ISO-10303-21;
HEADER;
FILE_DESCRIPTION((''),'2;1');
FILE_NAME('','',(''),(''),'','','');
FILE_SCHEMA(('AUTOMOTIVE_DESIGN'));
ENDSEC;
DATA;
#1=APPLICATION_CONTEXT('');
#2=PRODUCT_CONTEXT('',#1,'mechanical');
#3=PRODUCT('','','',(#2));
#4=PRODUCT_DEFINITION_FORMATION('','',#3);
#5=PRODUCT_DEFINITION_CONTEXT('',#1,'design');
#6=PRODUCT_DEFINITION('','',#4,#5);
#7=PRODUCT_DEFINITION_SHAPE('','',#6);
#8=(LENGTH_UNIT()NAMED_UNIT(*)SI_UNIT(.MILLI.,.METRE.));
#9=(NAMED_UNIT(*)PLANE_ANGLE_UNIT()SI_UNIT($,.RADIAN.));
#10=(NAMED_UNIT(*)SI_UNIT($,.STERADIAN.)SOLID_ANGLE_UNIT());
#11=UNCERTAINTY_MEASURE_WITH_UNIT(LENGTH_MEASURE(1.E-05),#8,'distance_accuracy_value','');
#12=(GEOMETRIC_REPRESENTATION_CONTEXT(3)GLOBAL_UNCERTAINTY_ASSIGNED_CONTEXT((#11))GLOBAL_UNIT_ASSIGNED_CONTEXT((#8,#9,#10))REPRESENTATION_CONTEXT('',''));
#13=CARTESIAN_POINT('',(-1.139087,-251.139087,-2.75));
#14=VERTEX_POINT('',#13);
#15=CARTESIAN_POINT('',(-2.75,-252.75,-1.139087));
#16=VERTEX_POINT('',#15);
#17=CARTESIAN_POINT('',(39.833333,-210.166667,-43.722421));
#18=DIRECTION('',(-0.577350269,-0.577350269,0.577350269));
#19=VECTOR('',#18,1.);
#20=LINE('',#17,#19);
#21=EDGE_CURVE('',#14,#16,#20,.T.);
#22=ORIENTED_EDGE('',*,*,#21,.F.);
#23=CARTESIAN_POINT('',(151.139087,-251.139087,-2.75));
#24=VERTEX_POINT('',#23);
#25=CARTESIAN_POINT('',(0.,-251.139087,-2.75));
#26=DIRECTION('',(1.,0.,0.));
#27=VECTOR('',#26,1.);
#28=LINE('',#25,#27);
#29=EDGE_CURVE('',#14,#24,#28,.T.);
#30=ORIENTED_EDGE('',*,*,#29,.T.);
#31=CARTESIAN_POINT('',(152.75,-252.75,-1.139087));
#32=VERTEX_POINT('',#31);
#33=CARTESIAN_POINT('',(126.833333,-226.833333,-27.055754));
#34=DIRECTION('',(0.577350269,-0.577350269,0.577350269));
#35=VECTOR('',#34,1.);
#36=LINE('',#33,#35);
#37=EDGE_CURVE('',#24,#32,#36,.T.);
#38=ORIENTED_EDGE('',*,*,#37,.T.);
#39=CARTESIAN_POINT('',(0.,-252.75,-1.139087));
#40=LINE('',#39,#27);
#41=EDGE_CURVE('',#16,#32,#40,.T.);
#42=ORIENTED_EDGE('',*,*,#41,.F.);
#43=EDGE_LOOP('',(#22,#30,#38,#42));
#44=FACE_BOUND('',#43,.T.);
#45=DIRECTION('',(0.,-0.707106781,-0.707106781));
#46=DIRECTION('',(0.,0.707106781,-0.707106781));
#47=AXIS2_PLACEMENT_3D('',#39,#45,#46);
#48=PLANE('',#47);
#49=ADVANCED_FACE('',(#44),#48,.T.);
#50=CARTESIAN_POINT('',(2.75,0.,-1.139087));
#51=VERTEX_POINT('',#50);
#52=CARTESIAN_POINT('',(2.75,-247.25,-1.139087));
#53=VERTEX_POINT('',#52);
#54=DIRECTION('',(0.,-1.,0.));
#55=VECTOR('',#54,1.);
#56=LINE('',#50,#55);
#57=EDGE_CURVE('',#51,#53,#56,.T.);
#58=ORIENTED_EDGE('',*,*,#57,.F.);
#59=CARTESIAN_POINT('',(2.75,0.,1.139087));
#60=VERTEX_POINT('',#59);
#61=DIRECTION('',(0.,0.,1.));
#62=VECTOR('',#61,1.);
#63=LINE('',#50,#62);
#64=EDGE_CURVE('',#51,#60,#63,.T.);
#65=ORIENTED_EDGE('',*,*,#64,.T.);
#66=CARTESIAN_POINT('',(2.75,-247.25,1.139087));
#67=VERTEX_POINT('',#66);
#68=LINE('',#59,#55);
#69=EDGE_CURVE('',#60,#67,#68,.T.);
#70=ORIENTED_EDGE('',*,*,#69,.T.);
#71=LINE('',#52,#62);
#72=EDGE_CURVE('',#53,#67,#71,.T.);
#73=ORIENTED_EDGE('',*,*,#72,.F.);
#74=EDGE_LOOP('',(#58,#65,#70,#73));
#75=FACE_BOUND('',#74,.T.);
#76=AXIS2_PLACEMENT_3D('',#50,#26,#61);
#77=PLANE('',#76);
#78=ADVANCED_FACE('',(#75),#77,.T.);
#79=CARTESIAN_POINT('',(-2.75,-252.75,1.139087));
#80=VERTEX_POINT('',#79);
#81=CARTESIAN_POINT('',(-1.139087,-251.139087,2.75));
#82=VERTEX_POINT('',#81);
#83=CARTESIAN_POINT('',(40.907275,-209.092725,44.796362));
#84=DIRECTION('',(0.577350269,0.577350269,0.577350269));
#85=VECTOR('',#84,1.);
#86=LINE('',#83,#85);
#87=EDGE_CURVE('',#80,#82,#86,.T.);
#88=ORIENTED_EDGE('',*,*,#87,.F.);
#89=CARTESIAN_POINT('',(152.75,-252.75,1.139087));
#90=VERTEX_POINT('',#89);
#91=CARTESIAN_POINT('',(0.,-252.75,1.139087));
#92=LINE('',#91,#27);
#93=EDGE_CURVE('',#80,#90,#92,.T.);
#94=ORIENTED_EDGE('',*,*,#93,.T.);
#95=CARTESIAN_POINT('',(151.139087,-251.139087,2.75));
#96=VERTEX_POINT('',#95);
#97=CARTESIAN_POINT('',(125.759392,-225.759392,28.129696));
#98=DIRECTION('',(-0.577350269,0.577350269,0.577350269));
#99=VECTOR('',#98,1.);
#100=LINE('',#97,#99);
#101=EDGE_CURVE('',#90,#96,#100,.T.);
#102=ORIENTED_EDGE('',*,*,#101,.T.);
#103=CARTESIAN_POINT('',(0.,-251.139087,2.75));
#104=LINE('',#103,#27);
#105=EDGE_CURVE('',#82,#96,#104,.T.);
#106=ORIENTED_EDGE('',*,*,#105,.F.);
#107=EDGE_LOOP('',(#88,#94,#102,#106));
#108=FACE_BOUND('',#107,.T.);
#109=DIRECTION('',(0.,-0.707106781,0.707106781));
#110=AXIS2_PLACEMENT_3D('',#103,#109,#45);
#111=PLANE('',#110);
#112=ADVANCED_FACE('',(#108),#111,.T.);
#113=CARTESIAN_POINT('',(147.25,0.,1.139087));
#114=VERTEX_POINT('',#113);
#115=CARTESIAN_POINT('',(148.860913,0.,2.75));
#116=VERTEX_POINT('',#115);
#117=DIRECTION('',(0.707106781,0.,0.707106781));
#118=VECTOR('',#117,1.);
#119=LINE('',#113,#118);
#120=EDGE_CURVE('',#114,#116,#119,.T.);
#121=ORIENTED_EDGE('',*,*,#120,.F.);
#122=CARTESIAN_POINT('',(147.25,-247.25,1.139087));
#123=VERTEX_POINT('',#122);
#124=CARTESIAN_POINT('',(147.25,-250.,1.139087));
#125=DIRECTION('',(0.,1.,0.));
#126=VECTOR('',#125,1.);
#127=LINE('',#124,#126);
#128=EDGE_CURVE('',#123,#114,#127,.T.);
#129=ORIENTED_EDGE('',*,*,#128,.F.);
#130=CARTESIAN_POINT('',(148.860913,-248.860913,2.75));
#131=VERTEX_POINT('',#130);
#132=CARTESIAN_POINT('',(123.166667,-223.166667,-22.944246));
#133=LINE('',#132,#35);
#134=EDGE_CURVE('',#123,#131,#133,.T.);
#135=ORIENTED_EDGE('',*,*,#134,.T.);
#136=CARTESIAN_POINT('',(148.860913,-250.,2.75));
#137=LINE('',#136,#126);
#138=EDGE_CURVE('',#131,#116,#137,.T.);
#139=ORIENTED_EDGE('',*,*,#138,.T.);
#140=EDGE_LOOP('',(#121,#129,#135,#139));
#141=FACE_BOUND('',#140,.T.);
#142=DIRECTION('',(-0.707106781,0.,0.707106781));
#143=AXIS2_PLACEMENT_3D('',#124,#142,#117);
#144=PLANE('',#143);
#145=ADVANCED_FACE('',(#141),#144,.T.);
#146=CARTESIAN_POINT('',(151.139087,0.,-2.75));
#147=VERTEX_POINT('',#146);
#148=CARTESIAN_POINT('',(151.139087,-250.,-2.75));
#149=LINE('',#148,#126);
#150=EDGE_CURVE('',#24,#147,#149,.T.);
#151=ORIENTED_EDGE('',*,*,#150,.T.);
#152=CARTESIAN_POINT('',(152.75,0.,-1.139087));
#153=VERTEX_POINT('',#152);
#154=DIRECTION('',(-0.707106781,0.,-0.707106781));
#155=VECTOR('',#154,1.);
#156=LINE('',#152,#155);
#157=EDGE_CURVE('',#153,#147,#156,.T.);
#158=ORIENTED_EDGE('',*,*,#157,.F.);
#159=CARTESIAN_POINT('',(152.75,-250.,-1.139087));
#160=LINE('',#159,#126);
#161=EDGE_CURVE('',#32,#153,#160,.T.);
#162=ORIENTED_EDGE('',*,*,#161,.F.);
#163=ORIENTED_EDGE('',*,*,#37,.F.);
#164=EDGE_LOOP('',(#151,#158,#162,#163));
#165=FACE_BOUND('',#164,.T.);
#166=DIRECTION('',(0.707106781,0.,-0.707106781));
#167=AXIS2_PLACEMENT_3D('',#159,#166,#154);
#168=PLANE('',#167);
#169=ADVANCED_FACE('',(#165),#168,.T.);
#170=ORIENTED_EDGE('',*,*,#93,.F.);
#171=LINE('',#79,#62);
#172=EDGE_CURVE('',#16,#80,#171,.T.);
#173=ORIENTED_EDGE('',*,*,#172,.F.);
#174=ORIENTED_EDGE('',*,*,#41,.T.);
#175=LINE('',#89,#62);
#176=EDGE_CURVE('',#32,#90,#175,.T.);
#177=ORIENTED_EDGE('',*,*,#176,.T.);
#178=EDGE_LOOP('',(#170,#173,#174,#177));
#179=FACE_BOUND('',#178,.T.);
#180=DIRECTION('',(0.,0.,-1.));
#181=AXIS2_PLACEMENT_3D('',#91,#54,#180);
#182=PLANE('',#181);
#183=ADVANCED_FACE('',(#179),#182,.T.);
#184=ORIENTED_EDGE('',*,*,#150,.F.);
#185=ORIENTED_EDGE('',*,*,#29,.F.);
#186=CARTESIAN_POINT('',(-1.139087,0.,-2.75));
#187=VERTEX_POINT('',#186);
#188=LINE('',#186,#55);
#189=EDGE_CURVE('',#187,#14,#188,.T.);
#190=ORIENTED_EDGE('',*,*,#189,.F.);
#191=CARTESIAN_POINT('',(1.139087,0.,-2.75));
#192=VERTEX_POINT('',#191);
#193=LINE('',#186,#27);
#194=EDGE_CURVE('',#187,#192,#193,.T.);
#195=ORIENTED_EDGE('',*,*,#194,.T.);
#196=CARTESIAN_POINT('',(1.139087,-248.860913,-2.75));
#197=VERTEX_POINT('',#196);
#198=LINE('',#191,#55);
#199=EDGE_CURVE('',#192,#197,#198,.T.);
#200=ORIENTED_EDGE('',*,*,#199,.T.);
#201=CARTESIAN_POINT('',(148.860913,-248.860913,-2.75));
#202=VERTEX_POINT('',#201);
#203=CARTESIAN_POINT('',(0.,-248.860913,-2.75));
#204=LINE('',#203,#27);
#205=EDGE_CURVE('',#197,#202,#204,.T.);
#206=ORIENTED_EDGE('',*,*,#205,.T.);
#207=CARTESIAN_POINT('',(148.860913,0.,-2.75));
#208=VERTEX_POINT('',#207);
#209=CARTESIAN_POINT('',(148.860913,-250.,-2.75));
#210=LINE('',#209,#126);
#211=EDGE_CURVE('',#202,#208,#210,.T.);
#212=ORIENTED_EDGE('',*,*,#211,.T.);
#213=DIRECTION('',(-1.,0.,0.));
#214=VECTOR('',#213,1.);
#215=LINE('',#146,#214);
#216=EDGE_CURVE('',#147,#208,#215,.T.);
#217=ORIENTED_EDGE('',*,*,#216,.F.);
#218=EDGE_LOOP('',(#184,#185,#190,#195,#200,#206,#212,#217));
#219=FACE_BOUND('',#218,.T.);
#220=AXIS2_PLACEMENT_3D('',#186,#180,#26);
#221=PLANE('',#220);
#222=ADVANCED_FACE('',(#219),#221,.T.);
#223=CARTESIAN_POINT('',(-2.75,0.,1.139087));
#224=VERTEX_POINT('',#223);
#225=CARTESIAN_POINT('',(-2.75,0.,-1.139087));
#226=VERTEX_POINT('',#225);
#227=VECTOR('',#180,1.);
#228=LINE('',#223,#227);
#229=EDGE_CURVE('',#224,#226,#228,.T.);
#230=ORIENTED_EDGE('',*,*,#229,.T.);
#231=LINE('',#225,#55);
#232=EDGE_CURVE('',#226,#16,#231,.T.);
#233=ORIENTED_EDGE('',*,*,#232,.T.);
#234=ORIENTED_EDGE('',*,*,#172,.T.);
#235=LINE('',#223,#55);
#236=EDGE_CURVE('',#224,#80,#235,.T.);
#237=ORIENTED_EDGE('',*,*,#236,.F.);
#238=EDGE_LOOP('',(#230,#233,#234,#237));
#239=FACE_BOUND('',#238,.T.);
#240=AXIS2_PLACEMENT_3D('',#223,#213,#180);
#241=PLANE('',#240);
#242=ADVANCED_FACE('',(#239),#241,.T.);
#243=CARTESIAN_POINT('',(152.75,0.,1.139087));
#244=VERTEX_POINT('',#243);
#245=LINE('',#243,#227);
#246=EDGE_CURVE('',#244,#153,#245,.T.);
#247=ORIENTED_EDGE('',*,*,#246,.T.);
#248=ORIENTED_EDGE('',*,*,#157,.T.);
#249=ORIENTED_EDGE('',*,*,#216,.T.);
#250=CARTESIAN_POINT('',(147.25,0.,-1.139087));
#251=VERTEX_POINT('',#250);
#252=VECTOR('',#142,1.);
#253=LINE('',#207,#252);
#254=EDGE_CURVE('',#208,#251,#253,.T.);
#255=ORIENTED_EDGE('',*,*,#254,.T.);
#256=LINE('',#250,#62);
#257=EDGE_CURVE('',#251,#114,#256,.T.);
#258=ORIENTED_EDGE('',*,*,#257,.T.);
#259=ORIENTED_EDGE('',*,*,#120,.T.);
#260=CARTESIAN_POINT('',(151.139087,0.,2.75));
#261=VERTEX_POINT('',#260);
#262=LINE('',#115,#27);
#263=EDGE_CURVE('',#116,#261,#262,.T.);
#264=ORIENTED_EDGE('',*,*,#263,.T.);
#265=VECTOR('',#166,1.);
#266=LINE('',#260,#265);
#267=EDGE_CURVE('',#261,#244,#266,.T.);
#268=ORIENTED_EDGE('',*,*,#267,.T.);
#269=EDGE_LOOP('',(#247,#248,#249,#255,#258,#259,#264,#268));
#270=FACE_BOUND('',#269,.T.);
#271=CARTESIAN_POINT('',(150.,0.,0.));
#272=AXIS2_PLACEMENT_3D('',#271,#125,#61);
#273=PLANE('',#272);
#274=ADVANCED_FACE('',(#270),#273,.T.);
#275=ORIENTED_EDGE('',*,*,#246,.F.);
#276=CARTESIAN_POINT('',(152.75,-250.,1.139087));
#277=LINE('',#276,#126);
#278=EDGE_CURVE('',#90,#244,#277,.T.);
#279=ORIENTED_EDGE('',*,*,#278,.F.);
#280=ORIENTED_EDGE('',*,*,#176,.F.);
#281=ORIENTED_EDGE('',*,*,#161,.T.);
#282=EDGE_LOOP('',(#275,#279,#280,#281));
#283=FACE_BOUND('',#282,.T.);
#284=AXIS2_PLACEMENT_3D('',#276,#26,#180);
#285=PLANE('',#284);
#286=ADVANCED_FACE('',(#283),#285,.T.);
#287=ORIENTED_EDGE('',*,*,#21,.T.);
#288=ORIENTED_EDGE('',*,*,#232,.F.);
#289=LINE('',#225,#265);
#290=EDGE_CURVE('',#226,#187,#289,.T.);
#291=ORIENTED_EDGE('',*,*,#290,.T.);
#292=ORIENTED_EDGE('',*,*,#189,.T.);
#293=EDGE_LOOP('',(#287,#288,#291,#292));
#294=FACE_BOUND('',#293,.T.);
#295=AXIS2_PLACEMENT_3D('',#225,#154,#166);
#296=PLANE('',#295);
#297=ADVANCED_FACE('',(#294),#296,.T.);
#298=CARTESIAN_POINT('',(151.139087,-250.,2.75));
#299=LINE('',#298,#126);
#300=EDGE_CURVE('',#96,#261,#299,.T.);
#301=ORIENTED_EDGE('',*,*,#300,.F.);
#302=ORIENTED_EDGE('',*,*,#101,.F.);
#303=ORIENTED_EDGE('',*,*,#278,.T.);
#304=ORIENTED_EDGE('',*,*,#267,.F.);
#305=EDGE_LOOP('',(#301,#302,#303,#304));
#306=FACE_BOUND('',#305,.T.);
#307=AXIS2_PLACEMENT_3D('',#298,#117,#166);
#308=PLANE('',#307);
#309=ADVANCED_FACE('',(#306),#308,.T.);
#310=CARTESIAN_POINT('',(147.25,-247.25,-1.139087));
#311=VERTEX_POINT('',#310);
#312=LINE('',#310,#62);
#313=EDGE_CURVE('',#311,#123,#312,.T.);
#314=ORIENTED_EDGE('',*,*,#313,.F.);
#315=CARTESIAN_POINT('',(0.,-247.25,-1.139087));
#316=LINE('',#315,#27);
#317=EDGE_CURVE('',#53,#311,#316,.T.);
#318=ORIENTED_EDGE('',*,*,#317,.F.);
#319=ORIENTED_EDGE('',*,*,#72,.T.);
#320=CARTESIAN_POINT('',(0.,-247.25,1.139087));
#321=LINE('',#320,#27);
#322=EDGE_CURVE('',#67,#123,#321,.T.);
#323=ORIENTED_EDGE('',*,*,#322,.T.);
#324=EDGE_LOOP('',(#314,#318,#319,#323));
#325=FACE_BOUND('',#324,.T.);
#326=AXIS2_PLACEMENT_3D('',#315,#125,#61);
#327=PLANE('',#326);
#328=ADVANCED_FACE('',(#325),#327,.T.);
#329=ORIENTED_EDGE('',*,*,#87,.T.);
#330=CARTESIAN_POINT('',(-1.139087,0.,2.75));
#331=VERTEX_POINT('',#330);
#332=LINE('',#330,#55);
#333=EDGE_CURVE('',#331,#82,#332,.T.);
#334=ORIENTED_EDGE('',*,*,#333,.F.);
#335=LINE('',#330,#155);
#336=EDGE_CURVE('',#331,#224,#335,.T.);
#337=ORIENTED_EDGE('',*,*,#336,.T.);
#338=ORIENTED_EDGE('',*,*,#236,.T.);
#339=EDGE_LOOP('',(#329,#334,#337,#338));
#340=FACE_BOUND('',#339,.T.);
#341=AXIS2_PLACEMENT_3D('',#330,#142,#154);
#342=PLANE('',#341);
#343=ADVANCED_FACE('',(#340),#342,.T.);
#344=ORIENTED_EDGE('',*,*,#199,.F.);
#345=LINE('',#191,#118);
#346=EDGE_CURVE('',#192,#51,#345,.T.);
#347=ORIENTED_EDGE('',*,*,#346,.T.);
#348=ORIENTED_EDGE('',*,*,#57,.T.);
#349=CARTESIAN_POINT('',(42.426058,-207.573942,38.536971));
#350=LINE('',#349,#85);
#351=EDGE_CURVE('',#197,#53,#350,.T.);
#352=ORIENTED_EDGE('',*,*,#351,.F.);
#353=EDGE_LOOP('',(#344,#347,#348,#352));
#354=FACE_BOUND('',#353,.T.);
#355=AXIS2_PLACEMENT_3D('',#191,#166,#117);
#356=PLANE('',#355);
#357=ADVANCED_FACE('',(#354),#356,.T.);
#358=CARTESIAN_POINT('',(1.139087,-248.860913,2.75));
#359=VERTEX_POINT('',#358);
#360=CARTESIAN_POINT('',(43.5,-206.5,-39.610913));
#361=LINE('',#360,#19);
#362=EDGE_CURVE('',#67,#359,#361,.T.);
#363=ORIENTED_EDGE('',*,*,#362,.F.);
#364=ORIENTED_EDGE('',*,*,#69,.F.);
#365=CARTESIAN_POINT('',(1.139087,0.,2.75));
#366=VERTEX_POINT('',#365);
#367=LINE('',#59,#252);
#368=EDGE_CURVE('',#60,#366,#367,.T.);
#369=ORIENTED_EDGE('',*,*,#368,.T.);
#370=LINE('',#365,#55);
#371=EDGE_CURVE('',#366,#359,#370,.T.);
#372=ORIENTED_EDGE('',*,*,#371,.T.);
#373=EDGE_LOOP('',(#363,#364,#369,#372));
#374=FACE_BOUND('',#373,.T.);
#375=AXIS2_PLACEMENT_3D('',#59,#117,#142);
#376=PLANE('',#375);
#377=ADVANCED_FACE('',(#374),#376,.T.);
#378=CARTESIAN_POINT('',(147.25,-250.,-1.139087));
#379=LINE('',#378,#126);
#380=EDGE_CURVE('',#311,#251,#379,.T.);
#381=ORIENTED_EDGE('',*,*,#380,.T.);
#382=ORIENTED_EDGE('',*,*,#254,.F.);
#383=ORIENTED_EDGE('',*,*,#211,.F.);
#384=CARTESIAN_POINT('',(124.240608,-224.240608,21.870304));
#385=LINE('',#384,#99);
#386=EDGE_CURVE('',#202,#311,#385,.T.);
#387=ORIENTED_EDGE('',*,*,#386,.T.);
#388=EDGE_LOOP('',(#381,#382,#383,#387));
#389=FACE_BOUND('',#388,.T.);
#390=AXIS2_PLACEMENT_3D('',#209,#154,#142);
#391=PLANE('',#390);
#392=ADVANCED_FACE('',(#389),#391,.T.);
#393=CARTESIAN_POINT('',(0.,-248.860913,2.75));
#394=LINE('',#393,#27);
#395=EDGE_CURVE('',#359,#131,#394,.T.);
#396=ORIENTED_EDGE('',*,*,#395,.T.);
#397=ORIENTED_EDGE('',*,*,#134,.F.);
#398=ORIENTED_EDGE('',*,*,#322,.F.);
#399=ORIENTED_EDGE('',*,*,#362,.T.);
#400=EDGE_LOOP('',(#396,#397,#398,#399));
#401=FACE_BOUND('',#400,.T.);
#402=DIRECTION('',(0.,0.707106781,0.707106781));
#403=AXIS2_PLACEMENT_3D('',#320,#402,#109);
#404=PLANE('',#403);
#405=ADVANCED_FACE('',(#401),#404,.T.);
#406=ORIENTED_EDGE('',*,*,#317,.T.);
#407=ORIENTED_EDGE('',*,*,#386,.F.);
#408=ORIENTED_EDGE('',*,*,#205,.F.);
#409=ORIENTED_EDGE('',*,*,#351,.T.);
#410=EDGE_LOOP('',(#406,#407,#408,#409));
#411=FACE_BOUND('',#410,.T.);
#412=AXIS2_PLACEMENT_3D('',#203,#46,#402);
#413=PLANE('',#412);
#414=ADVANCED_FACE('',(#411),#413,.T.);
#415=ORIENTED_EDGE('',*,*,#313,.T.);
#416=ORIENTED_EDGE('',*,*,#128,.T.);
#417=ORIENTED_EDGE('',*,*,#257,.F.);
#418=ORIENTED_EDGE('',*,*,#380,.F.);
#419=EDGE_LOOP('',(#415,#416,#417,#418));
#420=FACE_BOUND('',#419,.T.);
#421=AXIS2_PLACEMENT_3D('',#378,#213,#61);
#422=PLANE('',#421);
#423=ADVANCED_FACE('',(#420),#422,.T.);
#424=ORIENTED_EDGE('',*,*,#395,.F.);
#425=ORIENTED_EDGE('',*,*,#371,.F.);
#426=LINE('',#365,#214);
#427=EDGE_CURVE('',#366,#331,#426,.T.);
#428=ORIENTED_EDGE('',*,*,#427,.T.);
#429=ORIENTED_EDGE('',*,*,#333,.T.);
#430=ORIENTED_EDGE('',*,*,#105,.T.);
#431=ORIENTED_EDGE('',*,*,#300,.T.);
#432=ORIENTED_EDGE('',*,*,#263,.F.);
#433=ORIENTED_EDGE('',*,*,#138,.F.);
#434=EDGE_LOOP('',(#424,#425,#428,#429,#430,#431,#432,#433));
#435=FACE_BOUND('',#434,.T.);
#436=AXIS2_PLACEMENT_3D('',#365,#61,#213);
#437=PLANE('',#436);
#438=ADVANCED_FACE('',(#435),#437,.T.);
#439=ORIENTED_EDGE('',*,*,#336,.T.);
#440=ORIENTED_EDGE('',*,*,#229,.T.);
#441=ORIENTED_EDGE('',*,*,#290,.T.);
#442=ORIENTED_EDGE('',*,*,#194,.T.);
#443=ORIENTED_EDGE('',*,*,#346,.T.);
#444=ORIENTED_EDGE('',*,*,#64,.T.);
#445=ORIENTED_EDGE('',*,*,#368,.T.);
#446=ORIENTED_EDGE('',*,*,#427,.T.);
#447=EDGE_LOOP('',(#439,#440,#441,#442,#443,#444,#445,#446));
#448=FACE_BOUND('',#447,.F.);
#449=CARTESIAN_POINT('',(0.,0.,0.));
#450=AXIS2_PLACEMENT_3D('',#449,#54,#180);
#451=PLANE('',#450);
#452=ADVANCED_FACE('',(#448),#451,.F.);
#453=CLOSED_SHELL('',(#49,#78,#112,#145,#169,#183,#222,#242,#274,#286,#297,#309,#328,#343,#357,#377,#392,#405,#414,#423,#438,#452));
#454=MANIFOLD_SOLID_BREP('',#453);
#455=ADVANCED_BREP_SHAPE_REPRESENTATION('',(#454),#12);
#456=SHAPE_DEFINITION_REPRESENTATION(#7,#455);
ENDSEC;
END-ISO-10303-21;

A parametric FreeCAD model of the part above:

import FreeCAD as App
import Part
import Sketcher

V = App.Vector
Q = App.Units.Quantity


def add_polygon(sketch, points):
    """Adds a closed chain of lines whose ends are joined by coincident constraints."""
    first, n = sketch.GeometryCount, len(points)
    for a, b in zip(points, points[1:] + points[:1]):
        sketch.addGeometry(Part.LineSegment(App.Vector(*a, 0), App.Vector(*b, 0)), False)
    for i in range(n):
        sketch.addConstraint(Sketcher.Constraint("Coincident", first + i, 2, first + (i + 1) % n, 1))

doc = App.newDocument("Part")
params = doc.addObject("Spreadsheet::Sheet", "Params")
for row, (alias, value) in enumerate([
    ("sketch2_width", "150 mm"),
    ("sketch2_height", "250 mm"),
], start=1):
    params.set(f"A{row}", alias)
    params.set(f"B{row}", "=" + value)
    params.setAlias(f"B{row}", alias)

body = doc.addObject("PartDesign::Body", "Body")

sketch1 = body.newObject("Sketcher::SketchObject", "Sketch")
sketch1.AttachmentSupport = (doc.getObject("XZ_Plane"), [""])
sketch1.MapMode = "FlatFace"
add_polygon(sketch1, [(1.1, 2.8), (-1.1, 2.8), (-2.8, 1.1), (-2.8, -1.1), (-1.1, -2.8), (1.1, -2.8), (2.8, -1.1), (2.8, 1.1)])
sketch1.addConstraint(Sketcher.Constraint("Horizontal", 0))
sketch1.addConstraint(Sketcher.Constraint("Vertical", 2))
sketch1.addConstraint(Sketcher.Constraint("Horizontal", 4))
sketch1.addConstraint(Sketcher.Constraint("Vertical", 6))
sketch1.addConstraint(Sketcher.Constraint("Symmetric", 0, 2, 4, 2, -1, 1))
sketch1.addConstraint(Sketcher.Constraint("Symmetric", 1, 2, 5, 2, -1, 1))
sketch1.addConstraint(Sketcher.Constraint("Perpendicular", 1, 3))
sketch1.addConstraint(Sketcher.Constraint("Perpendicular", 5, 7))
sketch1.addConstraint(Sketcher.Constraint("Horizontal", 2, 2, 5, 2))
sketch1.addConstraint(Sketcher.Constraint("Horizontal", 1, 2, 6, 2))
sketch1.addConstraint(Sketcher.Constraint("Vertical", 0, 2, 3, 2))
sketch1.addConstraint(Sketcher.Constraint("Equal", 4, 2))
sketch1.addConstraint(Sketcher.Constraint("DistanceY", 3, 2, 0, 2, Q("5.5 mm")))
sketch1.addConstraint(Sketcher.Constraint("DistanceX", 0, 2, 0, 1, Q("2.278175 mm")))

sketch2 = body.newObject("Sketcher::SketchObject", "Sketch001")
sketch2.AttachmentSupport = (doc.getObject("XY_Plane"), [""])
sketch2.MapMode = "FlatFace"
sketch2.addGeometry(Part.LineSegment(V(0, 0, 0), V(0, -250, 0)), False)
sketch2.addGeometry(Part.LineSegment(V(0, -250, 0), V(150, -250, 0)), False)
sketch2.addGeometry(Part.LineSegment(V(150, -250, 0), V(150, 0, 0)), False)
sketch2.addConstraint(Sketcher.Constraint("Coincident", 0, 2, 1, 1))
sketch2.addConstraint(Sketcher.Constraint("Coincident", 1, 2, 2, 1))
sketch2.addConstraint(Sketcher.Constraint("Vertical", 0))
sketch2.addConstraint(Sketcher.Constraint("Horizontal", 1))
sketch2.addConstraint(Sketcher.Constraint("Vertical", 2))
sketch2.addConstraint(Sketcher.Constraint("Coincident", 0, 1, -1, 1))
sketch2.addConstraint(Sketcher.Constraint("PointOnObject", 2, 2, -1))
sketch2.addConstraint(Sketcher.Constraint("DistanceX", 1, 1, 1, 2, Q("150 mm")))
sketch2.addConstraint(Sketcher.Constraint("DistanceY", 0, 2, 0, 1, Q("250 mm")))
sketch2.setExpression("Constraints[7]", "Params.sketch2_width")
sketch2.setExpression("Constraints[8]", "Params.sketch2_height")
doc.recompute()

additivepipe = body.newObject("PartDesign::AdditivePipe", "AdditivePipe")
additivepipe.Profile = sketch1
additivepipe.Spine = (sketch2, ["Edge1", "Edge2", "Edge3"])
additivepipe.Transition = "Right corner"

doc.recompute()
